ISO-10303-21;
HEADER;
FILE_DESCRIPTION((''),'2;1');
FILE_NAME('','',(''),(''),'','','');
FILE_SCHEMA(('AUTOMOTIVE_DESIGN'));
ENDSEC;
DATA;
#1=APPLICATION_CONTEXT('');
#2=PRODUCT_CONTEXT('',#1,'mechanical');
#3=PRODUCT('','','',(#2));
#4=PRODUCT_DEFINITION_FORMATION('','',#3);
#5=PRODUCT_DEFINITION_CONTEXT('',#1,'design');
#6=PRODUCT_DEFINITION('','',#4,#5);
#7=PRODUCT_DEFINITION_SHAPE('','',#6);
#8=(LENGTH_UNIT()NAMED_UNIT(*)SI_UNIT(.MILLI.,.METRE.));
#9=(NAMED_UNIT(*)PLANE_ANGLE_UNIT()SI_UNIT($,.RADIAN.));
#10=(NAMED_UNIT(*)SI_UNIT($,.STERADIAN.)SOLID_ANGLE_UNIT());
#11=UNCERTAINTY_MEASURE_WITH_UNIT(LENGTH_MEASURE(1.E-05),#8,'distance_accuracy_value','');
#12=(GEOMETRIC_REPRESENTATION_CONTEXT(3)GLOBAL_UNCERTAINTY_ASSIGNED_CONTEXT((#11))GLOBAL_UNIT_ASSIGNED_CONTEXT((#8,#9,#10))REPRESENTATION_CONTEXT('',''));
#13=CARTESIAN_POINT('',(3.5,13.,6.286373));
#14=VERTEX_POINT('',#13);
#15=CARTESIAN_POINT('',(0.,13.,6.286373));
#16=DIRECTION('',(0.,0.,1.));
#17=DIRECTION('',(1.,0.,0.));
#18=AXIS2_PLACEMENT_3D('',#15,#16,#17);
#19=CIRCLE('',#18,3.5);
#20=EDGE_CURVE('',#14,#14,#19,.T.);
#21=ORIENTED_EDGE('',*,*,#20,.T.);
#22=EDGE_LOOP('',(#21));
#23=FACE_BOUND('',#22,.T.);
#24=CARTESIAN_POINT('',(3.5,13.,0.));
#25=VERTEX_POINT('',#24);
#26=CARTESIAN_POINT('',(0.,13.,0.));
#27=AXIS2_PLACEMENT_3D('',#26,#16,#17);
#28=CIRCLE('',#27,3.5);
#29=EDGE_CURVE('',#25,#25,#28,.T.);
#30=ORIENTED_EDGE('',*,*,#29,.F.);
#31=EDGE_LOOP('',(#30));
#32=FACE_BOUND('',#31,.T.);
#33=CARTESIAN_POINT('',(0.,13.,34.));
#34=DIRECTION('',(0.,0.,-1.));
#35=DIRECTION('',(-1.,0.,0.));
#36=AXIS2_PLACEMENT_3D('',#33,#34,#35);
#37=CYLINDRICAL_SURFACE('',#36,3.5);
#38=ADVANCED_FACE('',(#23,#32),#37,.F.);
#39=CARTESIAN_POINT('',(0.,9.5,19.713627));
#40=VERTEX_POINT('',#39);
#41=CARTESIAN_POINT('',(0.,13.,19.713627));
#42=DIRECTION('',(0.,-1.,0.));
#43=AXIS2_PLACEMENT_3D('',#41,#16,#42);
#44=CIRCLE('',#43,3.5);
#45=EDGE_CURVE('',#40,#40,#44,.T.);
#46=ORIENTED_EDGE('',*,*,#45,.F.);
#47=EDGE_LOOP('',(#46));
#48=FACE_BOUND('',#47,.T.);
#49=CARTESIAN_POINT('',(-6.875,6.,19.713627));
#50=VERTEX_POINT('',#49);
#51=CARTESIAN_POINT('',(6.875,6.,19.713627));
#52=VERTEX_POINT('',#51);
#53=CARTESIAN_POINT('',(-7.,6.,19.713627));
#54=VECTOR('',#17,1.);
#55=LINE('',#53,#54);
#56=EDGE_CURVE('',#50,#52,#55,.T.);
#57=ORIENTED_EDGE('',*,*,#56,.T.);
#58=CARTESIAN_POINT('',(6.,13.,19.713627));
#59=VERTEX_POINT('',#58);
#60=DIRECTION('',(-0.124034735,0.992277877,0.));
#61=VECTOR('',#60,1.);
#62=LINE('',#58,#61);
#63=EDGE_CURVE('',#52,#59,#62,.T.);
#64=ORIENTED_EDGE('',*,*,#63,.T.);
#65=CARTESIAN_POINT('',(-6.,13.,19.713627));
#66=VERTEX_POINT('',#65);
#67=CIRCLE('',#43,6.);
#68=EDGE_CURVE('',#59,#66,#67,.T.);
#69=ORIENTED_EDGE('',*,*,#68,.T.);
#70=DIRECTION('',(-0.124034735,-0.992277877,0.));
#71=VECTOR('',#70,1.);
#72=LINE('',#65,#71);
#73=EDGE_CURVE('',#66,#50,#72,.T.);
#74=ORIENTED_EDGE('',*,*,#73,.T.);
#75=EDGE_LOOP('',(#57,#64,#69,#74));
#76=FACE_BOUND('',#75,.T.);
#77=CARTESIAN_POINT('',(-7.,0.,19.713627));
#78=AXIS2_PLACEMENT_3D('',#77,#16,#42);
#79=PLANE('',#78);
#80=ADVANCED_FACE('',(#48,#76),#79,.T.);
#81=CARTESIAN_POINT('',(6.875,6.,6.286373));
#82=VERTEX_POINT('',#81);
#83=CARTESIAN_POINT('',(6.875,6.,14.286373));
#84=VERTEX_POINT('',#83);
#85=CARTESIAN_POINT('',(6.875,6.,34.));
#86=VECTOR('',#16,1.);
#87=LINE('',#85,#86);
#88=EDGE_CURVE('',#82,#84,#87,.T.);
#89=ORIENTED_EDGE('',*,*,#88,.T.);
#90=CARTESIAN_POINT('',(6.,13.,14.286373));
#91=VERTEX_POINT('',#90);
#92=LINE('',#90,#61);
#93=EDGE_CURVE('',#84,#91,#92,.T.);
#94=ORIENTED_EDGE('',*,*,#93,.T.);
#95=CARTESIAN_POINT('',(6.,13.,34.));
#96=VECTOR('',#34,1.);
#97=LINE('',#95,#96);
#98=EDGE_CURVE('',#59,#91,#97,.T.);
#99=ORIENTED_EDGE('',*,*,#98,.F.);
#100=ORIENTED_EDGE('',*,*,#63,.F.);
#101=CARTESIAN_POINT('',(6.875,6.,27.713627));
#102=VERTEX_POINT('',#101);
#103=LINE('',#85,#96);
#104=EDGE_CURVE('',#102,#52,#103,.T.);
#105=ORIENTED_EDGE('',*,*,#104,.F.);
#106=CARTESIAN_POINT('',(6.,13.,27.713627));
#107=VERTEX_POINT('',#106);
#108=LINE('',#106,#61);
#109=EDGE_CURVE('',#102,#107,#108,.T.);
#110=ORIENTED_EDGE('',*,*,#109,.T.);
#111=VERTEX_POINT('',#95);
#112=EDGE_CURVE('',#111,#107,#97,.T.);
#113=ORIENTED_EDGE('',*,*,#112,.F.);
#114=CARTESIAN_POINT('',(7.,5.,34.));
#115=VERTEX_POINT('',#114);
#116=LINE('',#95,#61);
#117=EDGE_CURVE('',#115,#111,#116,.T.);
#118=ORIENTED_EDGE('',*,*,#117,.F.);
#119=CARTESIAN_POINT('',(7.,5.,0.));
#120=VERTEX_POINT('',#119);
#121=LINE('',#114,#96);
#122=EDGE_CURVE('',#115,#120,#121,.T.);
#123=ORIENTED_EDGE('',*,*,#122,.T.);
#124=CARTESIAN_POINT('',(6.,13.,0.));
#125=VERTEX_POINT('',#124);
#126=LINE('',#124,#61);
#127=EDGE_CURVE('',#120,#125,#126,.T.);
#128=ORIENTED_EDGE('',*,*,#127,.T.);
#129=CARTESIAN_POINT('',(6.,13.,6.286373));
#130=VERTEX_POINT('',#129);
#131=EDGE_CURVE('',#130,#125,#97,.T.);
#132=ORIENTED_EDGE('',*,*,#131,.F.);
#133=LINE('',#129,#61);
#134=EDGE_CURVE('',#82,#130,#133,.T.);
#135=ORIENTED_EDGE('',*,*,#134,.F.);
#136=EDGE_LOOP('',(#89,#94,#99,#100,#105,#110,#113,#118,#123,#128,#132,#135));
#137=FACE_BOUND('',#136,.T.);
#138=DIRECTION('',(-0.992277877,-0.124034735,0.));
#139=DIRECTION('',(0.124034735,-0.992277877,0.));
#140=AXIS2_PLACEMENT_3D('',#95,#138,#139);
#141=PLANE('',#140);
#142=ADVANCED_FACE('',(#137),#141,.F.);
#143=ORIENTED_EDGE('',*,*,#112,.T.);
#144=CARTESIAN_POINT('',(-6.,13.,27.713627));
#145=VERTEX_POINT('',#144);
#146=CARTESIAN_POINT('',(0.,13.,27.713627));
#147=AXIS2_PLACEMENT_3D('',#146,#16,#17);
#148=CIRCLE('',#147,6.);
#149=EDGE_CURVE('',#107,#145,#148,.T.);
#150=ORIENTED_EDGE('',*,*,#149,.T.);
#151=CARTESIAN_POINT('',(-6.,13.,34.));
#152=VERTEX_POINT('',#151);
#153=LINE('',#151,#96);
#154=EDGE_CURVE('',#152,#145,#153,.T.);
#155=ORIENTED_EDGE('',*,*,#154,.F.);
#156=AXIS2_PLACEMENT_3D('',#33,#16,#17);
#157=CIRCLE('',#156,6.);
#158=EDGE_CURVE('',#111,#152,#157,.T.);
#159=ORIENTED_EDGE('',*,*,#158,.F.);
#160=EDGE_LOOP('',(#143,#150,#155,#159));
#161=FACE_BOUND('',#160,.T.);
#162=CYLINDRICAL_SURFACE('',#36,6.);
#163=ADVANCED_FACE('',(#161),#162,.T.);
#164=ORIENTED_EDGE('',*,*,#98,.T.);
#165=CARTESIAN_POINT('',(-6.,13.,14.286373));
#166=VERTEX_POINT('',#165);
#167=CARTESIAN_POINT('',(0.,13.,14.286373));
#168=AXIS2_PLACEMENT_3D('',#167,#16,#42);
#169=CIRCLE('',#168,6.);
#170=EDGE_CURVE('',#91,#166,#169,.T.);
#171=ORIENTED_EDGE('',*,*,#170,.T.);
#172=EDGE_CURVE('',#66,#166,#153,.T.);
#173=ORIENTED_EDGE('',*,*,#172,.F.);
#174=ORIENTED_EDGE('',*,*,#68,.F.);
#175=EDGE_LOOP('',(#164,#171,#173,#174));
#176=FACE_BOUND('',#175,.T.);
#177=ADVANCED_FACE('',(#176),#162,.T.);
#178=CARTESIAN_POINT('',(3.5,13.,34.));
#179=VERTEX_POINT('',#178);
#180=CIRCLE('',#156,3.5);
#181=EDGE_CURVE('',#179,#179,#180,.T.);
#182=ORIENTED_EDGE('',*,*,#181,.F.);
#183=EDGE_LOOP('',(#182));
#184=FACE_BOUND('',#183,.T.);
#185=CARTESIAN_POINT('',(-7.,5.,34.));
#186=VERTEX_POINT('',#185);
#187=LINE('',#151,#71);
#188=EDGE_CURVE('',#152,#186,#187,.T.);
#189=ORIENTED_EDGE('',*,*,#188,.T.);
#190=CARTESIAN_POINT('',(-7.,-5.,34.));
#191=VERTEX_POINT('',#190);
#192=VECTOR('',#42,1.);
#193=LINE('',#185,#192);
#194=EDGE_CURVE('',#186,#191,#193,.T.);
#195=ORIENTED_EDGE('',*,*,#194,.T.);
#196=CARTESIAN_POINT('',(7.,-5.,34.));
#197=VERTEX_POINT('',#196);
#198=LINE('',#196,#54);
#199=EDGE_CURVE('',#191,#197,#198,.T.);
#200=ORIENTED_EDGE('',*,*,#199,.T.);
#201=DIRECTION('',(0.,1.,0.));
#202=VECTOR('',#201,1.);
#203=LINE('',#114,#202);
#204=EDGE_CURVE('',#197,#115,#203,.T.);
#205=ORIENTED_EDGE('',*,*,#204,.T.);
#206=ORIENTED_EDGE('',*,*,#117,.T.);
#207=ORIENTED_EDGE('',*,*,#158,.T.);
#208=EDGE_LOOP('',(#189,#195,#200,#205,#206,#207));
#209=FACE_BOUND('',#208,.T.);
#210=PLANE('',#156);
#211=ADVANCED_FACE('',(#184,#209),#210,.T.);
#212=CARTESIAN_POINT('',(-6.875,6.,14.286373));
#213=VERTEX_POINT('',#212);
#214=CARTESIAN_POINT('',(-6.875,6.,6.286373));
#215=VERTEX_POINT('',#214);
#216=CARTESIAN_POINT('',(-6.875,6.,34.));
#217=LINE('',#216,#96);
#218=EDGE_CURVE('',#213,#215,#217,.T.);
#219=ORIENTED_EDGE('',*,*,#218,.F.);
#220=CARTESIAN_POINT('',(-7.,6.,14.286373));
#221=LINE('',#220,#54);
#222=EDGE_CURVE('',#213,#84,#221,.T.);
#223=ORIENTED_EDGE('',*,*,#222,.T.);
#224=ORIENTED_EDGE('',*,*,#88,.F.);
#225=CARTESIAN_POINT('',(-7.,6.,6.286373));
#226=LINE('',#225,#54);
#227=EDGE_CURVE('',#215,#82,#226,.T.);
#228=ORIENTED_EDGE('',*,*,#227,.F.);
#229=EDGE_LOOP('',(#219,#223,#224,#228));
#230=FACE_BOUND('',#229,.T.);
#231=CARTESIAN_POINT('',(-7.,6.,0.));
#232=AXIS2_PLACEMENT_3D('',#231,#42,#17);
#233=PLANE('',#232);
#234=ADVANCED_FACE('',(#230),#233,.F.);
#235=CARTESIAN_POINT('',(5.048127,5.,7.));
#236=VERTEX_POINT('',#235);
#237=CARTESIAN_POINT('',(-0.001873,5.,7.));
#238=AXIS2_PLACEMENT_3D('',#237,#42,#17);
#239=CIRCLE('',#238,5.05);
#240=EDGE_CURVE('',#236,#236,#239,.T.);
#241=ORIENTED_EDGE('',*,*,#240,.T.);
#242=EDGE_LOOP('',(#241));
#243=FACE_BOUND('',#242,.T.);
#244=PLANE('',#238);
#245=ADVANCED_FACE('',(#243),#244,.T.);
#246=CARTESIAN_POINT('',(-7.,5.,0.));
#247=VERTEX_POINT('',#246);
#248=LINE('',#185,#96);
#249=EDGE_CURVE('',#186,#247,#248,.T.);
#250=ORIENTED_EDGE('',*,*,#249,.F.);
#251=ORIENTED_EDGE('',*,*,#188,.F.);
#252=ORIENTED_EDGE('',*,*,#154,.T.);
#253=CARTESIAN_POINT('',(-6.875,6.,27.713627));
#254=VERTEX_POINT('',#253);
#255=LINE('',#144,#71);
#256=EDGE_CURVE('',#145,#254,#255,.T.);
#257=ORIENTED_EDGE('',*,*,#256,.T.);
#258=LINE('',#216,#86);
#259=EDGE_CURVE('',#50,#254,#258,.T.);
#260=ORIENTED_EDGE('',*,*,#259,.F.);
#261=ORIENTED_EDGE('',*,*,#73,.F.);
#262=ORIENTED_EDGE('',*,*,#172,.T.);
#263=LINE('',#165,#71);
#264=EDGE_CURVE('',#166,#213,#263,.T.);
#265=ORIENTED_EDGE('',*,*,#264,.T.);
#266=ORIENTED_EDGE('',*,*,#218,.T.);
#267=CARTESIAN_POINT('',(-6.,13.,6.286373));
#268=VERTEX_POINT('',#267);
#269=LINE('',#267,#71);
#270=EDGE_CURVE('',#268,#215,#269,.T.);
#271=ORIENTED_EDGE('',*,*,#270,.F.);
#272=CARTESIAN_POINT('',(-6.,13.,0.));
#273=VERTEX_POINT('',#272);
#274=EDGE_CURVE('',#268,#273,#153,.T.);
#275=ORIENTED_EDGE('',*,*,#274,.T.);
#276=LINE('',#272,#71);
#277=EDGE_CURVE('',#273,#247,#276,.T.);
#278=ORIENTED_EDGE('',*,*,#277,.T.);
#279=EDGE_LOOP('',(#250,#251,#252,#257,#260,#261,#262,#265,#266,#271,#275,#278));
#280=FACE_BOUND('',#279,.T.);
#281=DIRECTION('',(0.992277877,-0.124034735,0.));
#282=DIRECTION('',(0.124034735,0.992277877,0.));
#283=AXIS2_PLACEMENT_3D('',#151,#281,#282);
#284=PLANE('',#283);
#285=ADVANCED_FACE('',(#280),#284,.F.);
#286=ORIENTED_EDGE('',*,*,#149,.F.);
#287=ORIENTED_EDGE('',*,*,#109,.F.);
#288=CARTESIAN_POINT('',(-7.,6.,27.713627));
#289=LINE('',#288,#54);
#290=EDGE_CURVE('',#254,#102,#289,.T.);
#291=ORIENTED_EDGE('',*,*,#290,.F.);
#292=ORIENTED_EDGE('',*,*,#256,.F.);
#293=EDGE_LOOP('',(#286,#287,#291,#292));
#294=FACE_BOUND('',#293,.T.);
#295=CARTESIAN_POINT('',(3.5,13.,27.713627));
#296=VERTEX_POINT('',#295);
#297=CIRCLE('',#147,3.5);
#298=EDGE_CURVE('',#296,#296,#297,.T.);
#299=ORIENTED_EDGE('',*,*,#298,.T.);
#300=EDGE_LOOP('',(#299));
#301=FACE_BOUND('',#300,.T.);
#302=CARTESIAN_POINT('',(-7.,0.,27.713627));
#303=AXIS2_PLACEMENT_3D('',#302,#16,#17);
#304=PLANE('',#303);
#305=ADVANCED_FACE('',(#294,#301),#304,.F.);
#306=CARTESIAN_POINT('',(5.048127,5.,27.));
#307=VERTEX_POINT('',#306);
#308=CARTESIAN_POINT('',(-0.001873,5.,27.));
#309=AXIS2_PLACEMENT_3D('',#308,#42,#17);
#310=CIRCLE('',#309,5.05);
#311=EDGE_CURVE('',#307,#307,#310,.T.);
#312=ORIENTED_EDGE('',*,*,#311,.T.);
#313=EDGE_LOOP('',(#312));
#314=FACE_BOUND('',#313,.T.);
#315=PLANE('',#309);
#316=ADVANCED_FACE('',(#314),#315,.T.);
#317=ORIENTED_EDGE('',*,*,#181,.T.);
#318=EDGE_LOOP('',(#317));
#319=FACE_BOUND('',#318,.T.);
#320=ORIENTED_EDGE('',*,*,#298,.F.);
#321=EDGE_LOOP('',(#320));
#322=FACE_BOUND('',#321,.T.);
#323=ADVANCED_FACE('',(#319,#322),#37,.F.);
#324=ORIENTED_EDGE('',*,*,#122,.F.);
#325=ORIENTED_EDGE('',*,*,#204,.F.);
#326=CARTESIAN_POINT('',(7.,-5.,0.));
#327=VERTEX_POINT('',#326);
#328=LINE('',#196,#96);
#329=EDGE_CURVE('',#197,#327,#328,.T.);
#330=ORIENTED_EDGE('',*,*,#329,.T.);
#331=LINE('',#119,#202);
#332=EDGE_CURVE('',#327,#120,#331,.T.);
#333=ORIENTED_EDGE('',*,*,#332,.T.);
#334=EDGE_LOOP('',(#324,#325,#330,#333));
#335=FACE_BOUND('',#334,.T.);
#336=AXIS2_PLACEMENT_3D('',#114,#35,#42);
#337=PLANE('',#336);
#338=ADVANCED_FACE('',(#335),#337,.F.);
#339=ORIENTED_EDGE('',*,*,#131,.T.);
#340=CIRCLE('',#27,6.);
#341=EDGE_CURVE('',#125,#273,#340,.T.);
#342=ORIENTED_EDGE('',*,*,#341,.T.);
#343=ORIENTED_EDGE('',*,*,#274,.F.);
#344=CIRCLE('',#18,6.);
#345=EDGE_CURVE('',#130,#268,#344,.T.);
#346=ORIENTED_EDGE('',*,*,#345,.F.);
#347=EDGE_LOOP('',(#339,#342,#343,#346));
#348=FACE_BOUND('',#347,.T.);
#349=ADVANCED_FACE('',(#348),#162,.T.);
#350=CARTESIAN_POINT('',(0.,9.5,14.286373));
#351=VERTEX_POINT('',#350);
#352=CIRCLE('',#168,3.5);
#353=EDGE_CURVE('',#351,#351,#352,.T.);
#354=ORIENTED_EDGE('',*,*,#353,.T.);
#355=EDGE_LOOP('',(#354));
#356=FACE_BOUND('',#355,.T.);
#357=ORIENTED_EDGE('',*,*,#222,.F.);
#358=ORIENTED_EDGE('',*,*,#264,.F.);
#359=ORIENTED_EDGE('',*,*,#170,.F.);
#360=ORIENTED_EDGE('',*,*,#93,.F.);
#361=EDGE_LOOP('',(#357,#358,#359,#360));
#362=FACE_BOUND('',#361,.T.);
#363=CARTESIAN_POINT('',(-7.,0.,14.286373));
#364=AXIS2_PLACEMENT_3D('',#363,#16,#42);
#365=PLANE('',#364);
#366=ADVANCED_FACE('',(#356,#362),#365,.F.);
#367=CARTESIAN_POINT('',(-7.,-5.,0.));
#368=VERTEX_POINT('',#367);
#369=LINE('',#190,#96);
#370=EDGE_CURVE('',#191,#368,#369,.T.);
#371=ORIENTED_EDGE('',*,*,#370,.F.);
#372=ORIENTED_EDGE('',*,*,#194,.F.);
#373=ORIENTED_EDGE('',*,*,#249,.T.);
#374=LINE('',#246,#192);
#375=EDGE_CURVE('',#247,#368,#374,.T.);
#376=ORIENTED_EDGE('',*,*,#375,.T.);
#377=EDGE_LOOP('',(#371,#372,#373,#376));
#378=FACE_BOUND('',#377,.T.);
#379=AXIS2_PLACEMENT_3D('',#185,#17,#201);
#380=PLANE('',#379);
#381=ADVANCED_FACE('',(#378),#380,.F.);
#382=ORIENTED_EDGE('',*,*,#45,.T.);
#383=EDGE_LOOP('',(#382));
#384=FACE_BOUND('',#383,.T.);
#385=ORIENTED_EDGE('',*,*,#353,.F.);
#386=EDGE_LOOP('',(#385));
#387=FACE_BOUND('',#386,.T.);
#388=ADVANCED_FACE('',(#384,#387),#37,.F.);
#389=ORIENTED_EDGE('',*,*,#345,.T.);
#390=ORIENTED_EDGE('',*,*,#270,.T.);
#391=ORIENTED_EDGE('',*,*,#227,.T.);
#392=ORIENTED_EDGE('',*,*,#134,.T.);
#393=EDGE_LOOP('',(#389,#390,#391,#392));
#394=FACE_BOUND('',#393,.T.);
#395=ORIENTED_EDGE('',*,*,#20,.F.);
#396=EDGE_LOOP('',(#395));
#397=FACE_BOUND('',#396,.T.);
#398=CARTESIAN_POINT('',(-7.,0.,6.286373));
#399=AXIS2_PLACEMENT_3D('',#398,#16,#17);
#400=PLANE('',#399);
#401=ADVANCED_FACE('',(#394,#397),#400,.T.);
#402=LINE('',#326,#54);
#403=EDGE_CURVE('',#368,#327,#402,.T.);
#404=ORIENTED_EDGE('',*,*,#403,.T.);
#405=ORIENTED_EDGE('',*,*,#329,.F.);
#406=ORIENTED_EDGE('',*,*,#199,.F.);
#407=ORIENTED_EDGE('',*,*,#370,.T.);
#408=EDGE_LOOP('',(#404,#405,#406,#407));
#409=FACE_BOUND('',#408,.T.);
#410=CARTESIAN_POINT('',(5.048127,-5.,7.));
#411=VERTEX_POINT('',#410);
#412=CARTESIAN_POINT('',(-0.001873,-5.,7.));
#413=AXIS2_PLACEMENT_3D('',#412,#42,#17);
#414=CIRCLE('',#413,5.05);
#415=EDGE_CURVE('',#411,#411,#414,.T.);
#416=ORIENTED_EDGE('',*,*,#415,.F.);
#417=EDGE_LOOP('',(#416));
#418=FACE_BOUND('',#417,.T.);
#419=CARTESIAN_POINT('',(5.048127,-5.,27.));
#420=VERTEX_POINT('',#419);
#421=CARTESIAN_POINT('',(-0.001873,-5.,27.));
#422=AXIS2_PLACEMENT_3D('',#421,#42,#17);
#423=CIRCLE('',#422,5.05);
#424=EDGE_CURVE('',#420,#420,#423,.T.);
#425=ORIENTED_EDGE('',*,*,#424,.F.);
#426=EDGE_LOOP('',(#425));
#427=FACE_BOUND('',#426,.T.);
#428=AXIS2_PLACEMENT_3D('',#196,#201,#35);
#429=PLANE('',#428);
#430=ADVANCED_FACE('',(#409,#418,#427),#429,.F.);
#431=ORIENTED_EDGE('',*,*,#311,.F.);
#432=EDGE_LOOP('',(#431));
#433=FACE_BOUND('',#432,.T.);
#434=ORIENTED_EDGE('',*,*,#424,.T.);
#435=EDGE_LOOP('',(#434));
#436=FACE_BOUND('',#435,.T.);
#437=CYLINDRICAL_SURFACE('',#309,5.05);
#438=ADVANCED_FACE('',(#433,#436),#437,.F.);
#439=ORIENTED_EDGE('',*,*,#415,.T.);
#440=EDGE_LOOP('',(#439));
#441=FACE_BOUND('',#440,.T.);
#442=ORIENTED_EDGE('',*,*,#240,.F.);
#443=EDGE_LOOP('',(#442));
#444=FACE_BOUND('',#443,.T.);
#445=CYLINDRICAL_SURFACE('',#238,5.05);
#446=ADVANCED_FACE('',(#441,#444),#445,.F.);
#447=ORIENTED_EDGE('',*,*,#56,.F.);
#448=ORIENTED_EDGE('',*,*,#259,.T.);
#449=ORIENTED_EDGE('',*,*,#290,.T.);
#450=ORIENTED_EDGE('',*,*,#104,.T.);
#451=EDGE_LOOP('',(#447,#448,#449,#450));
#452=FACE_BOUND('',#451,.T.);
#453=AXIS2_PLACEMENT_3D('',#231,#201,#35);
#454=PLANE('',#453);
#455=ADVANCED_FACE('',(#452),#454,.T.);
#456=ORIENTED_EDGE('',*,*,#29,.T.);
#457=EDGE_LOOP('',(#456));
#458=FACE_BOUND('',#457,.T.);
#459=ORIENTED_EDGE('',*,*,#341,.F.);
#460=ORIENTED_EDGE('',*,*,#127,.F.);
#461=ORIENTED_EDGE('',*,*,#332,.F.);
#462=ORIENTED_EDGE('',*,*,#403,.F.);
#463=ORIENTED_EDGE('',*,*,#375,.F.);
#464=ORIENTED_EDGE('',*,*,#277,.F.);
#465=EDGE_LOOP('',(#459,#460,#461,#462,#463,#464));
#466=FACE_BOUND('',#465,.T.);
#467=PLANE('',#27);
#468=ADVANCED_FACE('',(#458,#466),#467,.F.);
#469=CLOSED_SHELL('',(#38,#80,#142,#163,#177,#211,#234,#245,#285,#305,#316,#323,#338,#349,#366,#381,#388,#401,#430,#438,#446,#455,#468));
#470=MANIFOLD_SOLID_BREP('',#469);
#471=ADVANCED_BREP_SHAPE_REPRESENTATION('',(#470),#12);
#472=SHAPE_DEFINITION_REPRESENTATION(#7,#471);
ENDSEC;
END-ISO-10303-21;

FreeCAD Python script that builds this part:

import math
import FreeCAD as App
import Part
import Sketcher
from FreeCAD import Vector


def add_polygon(sketch, points):
    """Adds a closed chain of lines whose ends are joined by coincident constraints."""
    first, n = sketch.GeometryCount, len(points)
    for a, b in zip(points, points[1:] + points[:1]):
        sketch.addGeometry(Part.LineSegment(App.Vector(*a, 0), App.Vector(*b, 0)), False)
    for i in range(n):
        sketch.addConstraint(Sketcher.Constraint("Coincident", first + i, 2, first + (i + 1) % n, 1))

doc = App.newDocument("Part")
body = doc.addObject("PartDesign::Body", "Body")

# Sketch on XY plane
sketch1 = body.newObject("Sketcher::SketchObject", "Sketch")
sketch1.AttachmentSupport = (doc.getObject("XY_Plane"), [""])
sketch1.MapMode = "FlatFace"
sketch1.addGeometry(Part.LineSegment(Vector(7, -5, 0), Vector(7, 5, 0)), False)
sketch1.addGeometry(Part.LineSegment(Vector(7, 5, 0), Vector(6, 13, 0)), False)
sketch1.addGeometry(Part.ArcOfCircle(Part.Circle(Vector(0, 13, 0), Vector(0, 0, 1), 6), math.radians(0), math.radians(180)), False)
sketch1.addGeometry(Part.LineSegment(Vector(-6, 13, 0), Vector(-7, 5, 0)), False)
sketch1.addGeometry(Part.LineSegment(Vector(-7, 5, 0), Vector(-7, -5, 0)), False)
sketch1.addGeometry(Part.LineSegment(Vector(-7, -5, 0), Vector(7, -5, 0)), False)
sketch1.addGeometry(Part.Circle(Vector(0, 13, 0), Vector(0, 0, 1), 3.5), False)
sketch1.addConstraint(Sketcher.Constraint("Coincident", 0, 2, 1, 1))
sketch1.addConstraint(Sketcher.Constraint("Coincident", 1, 2, 2, 1))
sketch1.addConstraint(Sketcher.Constraint("Coincident", 2, 2, 3, 1))
sketch1.addConstraint(Sketcher.Constraint("Coincident", 3, 2, 4, 1))
sketch1.addConstraint(Sketcher.Constraint("Coincident", 4, 2, 5, 1))
sketch1.addConstraint(Sketcher.Constraint("Coincident", 5, 2, 0, 1))
sketch1.addConstraint(Sketcher.Constraint("Vertical", 0))
sketch1.addConstraint(Sketcher.Constraint("Vertical", 4))
sketch1.addConstraint(Sketcher.Constraint("Horizontal", 5))
sketch1.addConstraint(Sketcher.Constraint("Coincident", 6, 3, 2, 3))
sketch1.addConstraint(Sketcher.Constraint("Symmetric", 0, 2, 4, 2, -1, 1))
sketch1.addConstraint(Sketcher.Constraint("Symmetric", 1, 2, 2, 2, -2))
sketch1.addConstraint(Sketcher.Constraint("Horizontal", 6, 3, 1, 2))
sketch1.addConstraint(Sketcher.Constraint("Horizontal", 0, 2, 3, 2))
sketch1.addConstraint(Sketcher.Constraint("Diameter", 6, 7.0))
sketch1.addConstraint(Sketcher.Constraint("Radius", 2, 6.0))
sketch1.addConstraint(Sketcher.Constraint("DistanceX", 5, 1, 5, 2, 14.0))
sketch1.addConstraint(Sketcher.Constraint("DistanceY", 0, 1, 0, 2, 10.0))
sketch1.addConstraint(Sketcher.Constraint("DistanceY", -1, 1, 2, 3, 13.0))
pad1 = body.newObject("PartDesign::Pad", "Pad")
pad1.Profile = sketch1
pad1.Length = 34

# Sketch on YZ plane
sketch2 = body.newObject("Sketcher::SketchObject", "Sketch001")
sketch2.AttachmentSupport = (doc.getObject("YZ_Plane"), [""])
sketch2.MapMode = "FlatFace"
sketch2.AttachmentOffset = App.Placement(Vector(0, 0, 7), App.Rotation())
add_polygon(sketch2, [(19, 28), (6, 28), (6, 20), (19, 20)])  # lines 0-3
add_polygon(sketch2, [(19, 6), (19, 14), (6, 14), (6, 6)])  # lines 4-7
sketch2.addConstraint(Sketcher.Constraint("Horizontal", 0))
sketch2.addConstraint(Sketcher.Constraint("Vertical", 1))
sketch2.addConstraint(Sketcher.Constraint("Horizontal", 2))
sketch2.addConstraint(Sketcher.Constraint("Vertical", 3))
sketch2.addConstraint(Sketcher.Constraint("Vertical", 4))
sketch2.addConstraint(Sketcher.Constraint("Horizontal", 5))
sketch2.addConstraint(Sketcher.Constraint("Vertical", 6))
sketch2.addConstraint(Sketcher.Constraint("Horizontal", 7))
sketch2.addConstraint(Sketcher.Constraint("Vertical", 3, 2, 4, 2))
sketch2.addConstraint(Sketcher.Constraint("Vertical", 1, 2, 5, 2))
sketch2.addConstraint(Sketcher.Constraint("Equal", 3, 4))
sketch2.addConstraint(Sketcher.Constraint("DistanceX", 0, 2, 0, 1, 13.0))
sketch2.addConstraint(Sketcher.Constraint("DistanceY", 1, 2, 1, 1, 8.0))
sketch2.addConstraint(Sketcher.Constraint("DistanceX", -1, 1, 0, 2, 6.0))
sketch2.addConstraint(Sketcher.Constraint("DistanceY", -1, 1, 0, 2, 27.713627))
sketch2.addConstraint(Sketcher.Constraint("DistanceY", -1, 1, 4, 2, 14.286373))
pocket1 = body.newObject("PartDesign::Pocket", "Pocket")
pocket1.Profile = sketch2
pocket1.Type = "ThroughAll"
pocket1.Midplane = True

# Sketch on XZ plane
sketch3 = body.newObject("Sketcher::SketchObject", "Sketch002")
sketch3.AttachmentSupport = (doc.getObject("XZ_Plane"), [""])
sketch3.MapMode = "FlatFace"
sketch3.AttachmentOffset = App.Placement(Vector(0, 0, 5), App.Rotation())
sketch3.addGeometry(Part.Circle(Vector(0, 27, 0), Vector(0, 0, 1), 5), False)
sketch3.addGeometry(Part.Circle(Vector(0, 7, 0), Vector(0, 0, 1), 5), False)
sketch3.addConstraint(Sketcher.Constraint("Equal", 0, 1))
sketch3.addConstraint(Sketcher.Constraint("Vertical", 0, 3, 1, 3))
sketch3.addConstraint(Sketcher.Constraint("Diameter", 0, 10.1))
sketch3.addConstraint(Sketcher.Constraint("DistanceY", -1, 1, 0, 3, 27.0))
sketch3.addConstraint(Sketcher.Constraint("DistanceY", -1, 1, 1, 3, 7.0))
sketch3.addConstraint(Sketcher.Constraint("DistanceX", 0, 3, -1, 1, 0.001873))
pocket2 = body.newObject("PartDesign::Pocket", "Pocket001")
pocket2.Profile = sketch3
pocket2.Length = 10

doc.recompute()
